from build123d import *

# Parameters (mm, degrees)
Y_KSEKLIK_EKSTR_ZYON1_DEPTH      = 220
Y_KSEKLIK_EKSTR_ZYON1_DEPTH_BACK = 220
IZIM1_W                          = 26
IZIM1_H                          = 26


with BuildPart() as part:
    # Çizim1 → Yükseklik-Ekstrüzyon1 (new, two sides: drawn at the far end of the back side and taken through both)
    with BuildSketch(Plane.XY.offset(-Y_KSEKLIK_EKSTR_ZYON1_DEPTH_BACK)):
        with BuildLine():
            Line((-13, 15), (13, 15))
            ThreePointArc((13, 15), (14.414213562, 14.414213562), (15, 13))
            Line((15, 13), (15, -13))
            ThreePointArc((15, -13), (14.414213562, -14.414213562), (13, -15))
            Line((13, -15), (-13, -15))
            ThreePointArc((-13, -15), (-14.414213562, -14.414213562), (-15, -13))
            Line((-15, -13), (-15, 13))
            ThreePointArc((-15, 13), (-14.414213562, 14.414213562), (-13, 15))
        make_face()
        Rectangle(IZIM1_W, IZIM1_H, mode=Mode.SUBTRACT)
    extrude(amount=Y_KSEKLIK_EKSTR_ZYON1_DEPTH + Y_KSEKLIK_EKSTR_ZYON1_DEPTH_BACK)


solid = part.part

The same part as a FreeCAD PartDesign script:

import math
import FreeCAD as App
import Part
import Sketcher

V = App.Vector
Q = App.Units.Quantity

doc = App.newDocument("Part")
body = doc.addObject("PartDesign::Body", "Body")

sketch1 = body.newObject("Sketcher::SketchObject", "Sketch")
sketch1.AttachmentSupport = (doc.getObject("XY_Plane"), [""])
sketch1.MapMode = "FlatFace"
sketch1.addGeometry(Part.LineSegment(V(13, 15, 0), V(-13, 15, 0)), False)
sketch1.addGeometry(Part.ArcOfCircle(Part.Circle(V(-13, 13, 0), V(0, 0, 1), 2), math.radians(90), math.radians(180)), False)
sketch1.addGeometry(Part.LineSegment(V(-15, 13, 0), V(-15, -13, 0)), False)
sketch1.addGeometry(Part.ArcOfCircle(Part.Circle(V(-13, -13, 0), V(0, 0, 1), 2), math.radians(-180), math.radians(-90)), False)
sketch1.addGeometry(Part.LineSegment(V(-13, -15, 0), V(13, -15, 0)), False)
sketch1.addGeometry(Part.ArcOfCircle(Part.Circle(V(13, -13, 0), V(0, 0, 1), 2), math.radians(-90), math.radians(0)), False)
sketch1.addGeometry(Part.LineSegment(V(15, -13, 0), V(15, 13, 0)), False)
sketch1.addGeometry(Part.ArcOfCircle(Part.Circle(V(13, 13, 0), V(0, 0, 1), 2), math.radians(0), math.radians(90)), False)
sketch1.addGeometry(Part.LineSegment(V(-13, -13, 0), V(-13, 13, 0)), False)
sketch1.addGeometry(Part.LineSegment(V(-13, 13, 0), V(13, 13, 0)), False)
sketch1.addGeometry(Part.LineSegment(V(13, 13, 0), V(13, -13, 0)), False)
sketch1.addGeometry(Part.LineSegment(V(13, -13, 0), V(-13, -13, 0)), False)
sketch1.addConstraint(Sketcher.Constraint("Tangent", 0, 2, 1, 1))
sketch1.addConstraint(Sketcher.Constraint("Tangent", 1, 2, 2, 1))
sketch1.addConstraint(Sketcher.Constraint("Tangent", 2, 2, 3, 1))
sketch1.addConstraint(Sketcher.Constraint("Tangent", 3, 2, 4, 1))
sketch1.addConstraint(Sketcher.Constraint("Tangent", 4, 2, 5, 1))
sketch1.addConstraint(Sketcher.Constraint("Tangent", 5, 2, 6, 1))
sketch1.addConstraint(Sketcher.Constraint("Tangent", 6, 2, 7, 1))
sketch1.addConstraint(Sketcher.Constraint("Tangent", 7, 2, 0, 1))
sketch1.addConstraint(Sketcher.Constraint("Coincident", 8, 2, 9, 1))
sketch1.addConstraint(Sketcher.Constraint("Coincident", 9, 2, 10, 1))
sketch1.addConstraint(Sketcher.Constraint("Coincident", 10, 2, 11, 1))
sketch1.addConstraint(Sketcher.Constraint("Coincident", 11, 2, 8, 1))
sketch1.addConstraint(Sketcher.Constraint("Horizontal", 0))
sketch1.addConstraint(Sketcher.Constraint("Vertical", 2))
sketch1.addConstraint(Sketcher.Constraint("Horizontal", 4))
sketch1.addConstraint(Sketcher.Constraint("Vertical", 6))
sketch1.addConstraint(Sketcher.Constraint("Vertical", 8))
sketch1.addConstraint(Sketcher.Constraint("Horizontal", 9))
sketch1.addConstraint(Sketcher.Constraint("Vertical", 10))
sketch1.addConstraint(Sketcher.Constraint("Horizontal", 11))
sketch1.addConstraint(Sketcher.Constraint("Coincident", 8, 2, 1, 3))
sketch1.addConstraint(Sketcher.Constraint("Coincident", 9, 2, 7, 3))
sketch1.addConstraint(Sketcher.Constraint("Coincident", 10, 2, 5, 3))
sketch1.addConstraint(Sketcher.Constraint("Equal", 1, 3))
sketch1.addConstraint(Sketcher.Constraint("Symmetric", 1, 3, 5, 3, -1, 1))
sketch1.addConstraint(Sketcher.Constraint("Equal", 11, 2))
sketch1.addConstraint(Sketcher.Constraint("Radius", 1, Q("2 mm")))
sketch1.addConstraint(Sketcher.Constraint("DistanceX", 0, 2, 0, 1, Q("26 mm")))
pad1 = body.newObject("PartDesign::Pad", "Pad")
pad1.Profile = sketch1
pad1.Type = "TwoLengths"
pad1.Length = 220
pad1.Length2 = 220

doc.recompute()
